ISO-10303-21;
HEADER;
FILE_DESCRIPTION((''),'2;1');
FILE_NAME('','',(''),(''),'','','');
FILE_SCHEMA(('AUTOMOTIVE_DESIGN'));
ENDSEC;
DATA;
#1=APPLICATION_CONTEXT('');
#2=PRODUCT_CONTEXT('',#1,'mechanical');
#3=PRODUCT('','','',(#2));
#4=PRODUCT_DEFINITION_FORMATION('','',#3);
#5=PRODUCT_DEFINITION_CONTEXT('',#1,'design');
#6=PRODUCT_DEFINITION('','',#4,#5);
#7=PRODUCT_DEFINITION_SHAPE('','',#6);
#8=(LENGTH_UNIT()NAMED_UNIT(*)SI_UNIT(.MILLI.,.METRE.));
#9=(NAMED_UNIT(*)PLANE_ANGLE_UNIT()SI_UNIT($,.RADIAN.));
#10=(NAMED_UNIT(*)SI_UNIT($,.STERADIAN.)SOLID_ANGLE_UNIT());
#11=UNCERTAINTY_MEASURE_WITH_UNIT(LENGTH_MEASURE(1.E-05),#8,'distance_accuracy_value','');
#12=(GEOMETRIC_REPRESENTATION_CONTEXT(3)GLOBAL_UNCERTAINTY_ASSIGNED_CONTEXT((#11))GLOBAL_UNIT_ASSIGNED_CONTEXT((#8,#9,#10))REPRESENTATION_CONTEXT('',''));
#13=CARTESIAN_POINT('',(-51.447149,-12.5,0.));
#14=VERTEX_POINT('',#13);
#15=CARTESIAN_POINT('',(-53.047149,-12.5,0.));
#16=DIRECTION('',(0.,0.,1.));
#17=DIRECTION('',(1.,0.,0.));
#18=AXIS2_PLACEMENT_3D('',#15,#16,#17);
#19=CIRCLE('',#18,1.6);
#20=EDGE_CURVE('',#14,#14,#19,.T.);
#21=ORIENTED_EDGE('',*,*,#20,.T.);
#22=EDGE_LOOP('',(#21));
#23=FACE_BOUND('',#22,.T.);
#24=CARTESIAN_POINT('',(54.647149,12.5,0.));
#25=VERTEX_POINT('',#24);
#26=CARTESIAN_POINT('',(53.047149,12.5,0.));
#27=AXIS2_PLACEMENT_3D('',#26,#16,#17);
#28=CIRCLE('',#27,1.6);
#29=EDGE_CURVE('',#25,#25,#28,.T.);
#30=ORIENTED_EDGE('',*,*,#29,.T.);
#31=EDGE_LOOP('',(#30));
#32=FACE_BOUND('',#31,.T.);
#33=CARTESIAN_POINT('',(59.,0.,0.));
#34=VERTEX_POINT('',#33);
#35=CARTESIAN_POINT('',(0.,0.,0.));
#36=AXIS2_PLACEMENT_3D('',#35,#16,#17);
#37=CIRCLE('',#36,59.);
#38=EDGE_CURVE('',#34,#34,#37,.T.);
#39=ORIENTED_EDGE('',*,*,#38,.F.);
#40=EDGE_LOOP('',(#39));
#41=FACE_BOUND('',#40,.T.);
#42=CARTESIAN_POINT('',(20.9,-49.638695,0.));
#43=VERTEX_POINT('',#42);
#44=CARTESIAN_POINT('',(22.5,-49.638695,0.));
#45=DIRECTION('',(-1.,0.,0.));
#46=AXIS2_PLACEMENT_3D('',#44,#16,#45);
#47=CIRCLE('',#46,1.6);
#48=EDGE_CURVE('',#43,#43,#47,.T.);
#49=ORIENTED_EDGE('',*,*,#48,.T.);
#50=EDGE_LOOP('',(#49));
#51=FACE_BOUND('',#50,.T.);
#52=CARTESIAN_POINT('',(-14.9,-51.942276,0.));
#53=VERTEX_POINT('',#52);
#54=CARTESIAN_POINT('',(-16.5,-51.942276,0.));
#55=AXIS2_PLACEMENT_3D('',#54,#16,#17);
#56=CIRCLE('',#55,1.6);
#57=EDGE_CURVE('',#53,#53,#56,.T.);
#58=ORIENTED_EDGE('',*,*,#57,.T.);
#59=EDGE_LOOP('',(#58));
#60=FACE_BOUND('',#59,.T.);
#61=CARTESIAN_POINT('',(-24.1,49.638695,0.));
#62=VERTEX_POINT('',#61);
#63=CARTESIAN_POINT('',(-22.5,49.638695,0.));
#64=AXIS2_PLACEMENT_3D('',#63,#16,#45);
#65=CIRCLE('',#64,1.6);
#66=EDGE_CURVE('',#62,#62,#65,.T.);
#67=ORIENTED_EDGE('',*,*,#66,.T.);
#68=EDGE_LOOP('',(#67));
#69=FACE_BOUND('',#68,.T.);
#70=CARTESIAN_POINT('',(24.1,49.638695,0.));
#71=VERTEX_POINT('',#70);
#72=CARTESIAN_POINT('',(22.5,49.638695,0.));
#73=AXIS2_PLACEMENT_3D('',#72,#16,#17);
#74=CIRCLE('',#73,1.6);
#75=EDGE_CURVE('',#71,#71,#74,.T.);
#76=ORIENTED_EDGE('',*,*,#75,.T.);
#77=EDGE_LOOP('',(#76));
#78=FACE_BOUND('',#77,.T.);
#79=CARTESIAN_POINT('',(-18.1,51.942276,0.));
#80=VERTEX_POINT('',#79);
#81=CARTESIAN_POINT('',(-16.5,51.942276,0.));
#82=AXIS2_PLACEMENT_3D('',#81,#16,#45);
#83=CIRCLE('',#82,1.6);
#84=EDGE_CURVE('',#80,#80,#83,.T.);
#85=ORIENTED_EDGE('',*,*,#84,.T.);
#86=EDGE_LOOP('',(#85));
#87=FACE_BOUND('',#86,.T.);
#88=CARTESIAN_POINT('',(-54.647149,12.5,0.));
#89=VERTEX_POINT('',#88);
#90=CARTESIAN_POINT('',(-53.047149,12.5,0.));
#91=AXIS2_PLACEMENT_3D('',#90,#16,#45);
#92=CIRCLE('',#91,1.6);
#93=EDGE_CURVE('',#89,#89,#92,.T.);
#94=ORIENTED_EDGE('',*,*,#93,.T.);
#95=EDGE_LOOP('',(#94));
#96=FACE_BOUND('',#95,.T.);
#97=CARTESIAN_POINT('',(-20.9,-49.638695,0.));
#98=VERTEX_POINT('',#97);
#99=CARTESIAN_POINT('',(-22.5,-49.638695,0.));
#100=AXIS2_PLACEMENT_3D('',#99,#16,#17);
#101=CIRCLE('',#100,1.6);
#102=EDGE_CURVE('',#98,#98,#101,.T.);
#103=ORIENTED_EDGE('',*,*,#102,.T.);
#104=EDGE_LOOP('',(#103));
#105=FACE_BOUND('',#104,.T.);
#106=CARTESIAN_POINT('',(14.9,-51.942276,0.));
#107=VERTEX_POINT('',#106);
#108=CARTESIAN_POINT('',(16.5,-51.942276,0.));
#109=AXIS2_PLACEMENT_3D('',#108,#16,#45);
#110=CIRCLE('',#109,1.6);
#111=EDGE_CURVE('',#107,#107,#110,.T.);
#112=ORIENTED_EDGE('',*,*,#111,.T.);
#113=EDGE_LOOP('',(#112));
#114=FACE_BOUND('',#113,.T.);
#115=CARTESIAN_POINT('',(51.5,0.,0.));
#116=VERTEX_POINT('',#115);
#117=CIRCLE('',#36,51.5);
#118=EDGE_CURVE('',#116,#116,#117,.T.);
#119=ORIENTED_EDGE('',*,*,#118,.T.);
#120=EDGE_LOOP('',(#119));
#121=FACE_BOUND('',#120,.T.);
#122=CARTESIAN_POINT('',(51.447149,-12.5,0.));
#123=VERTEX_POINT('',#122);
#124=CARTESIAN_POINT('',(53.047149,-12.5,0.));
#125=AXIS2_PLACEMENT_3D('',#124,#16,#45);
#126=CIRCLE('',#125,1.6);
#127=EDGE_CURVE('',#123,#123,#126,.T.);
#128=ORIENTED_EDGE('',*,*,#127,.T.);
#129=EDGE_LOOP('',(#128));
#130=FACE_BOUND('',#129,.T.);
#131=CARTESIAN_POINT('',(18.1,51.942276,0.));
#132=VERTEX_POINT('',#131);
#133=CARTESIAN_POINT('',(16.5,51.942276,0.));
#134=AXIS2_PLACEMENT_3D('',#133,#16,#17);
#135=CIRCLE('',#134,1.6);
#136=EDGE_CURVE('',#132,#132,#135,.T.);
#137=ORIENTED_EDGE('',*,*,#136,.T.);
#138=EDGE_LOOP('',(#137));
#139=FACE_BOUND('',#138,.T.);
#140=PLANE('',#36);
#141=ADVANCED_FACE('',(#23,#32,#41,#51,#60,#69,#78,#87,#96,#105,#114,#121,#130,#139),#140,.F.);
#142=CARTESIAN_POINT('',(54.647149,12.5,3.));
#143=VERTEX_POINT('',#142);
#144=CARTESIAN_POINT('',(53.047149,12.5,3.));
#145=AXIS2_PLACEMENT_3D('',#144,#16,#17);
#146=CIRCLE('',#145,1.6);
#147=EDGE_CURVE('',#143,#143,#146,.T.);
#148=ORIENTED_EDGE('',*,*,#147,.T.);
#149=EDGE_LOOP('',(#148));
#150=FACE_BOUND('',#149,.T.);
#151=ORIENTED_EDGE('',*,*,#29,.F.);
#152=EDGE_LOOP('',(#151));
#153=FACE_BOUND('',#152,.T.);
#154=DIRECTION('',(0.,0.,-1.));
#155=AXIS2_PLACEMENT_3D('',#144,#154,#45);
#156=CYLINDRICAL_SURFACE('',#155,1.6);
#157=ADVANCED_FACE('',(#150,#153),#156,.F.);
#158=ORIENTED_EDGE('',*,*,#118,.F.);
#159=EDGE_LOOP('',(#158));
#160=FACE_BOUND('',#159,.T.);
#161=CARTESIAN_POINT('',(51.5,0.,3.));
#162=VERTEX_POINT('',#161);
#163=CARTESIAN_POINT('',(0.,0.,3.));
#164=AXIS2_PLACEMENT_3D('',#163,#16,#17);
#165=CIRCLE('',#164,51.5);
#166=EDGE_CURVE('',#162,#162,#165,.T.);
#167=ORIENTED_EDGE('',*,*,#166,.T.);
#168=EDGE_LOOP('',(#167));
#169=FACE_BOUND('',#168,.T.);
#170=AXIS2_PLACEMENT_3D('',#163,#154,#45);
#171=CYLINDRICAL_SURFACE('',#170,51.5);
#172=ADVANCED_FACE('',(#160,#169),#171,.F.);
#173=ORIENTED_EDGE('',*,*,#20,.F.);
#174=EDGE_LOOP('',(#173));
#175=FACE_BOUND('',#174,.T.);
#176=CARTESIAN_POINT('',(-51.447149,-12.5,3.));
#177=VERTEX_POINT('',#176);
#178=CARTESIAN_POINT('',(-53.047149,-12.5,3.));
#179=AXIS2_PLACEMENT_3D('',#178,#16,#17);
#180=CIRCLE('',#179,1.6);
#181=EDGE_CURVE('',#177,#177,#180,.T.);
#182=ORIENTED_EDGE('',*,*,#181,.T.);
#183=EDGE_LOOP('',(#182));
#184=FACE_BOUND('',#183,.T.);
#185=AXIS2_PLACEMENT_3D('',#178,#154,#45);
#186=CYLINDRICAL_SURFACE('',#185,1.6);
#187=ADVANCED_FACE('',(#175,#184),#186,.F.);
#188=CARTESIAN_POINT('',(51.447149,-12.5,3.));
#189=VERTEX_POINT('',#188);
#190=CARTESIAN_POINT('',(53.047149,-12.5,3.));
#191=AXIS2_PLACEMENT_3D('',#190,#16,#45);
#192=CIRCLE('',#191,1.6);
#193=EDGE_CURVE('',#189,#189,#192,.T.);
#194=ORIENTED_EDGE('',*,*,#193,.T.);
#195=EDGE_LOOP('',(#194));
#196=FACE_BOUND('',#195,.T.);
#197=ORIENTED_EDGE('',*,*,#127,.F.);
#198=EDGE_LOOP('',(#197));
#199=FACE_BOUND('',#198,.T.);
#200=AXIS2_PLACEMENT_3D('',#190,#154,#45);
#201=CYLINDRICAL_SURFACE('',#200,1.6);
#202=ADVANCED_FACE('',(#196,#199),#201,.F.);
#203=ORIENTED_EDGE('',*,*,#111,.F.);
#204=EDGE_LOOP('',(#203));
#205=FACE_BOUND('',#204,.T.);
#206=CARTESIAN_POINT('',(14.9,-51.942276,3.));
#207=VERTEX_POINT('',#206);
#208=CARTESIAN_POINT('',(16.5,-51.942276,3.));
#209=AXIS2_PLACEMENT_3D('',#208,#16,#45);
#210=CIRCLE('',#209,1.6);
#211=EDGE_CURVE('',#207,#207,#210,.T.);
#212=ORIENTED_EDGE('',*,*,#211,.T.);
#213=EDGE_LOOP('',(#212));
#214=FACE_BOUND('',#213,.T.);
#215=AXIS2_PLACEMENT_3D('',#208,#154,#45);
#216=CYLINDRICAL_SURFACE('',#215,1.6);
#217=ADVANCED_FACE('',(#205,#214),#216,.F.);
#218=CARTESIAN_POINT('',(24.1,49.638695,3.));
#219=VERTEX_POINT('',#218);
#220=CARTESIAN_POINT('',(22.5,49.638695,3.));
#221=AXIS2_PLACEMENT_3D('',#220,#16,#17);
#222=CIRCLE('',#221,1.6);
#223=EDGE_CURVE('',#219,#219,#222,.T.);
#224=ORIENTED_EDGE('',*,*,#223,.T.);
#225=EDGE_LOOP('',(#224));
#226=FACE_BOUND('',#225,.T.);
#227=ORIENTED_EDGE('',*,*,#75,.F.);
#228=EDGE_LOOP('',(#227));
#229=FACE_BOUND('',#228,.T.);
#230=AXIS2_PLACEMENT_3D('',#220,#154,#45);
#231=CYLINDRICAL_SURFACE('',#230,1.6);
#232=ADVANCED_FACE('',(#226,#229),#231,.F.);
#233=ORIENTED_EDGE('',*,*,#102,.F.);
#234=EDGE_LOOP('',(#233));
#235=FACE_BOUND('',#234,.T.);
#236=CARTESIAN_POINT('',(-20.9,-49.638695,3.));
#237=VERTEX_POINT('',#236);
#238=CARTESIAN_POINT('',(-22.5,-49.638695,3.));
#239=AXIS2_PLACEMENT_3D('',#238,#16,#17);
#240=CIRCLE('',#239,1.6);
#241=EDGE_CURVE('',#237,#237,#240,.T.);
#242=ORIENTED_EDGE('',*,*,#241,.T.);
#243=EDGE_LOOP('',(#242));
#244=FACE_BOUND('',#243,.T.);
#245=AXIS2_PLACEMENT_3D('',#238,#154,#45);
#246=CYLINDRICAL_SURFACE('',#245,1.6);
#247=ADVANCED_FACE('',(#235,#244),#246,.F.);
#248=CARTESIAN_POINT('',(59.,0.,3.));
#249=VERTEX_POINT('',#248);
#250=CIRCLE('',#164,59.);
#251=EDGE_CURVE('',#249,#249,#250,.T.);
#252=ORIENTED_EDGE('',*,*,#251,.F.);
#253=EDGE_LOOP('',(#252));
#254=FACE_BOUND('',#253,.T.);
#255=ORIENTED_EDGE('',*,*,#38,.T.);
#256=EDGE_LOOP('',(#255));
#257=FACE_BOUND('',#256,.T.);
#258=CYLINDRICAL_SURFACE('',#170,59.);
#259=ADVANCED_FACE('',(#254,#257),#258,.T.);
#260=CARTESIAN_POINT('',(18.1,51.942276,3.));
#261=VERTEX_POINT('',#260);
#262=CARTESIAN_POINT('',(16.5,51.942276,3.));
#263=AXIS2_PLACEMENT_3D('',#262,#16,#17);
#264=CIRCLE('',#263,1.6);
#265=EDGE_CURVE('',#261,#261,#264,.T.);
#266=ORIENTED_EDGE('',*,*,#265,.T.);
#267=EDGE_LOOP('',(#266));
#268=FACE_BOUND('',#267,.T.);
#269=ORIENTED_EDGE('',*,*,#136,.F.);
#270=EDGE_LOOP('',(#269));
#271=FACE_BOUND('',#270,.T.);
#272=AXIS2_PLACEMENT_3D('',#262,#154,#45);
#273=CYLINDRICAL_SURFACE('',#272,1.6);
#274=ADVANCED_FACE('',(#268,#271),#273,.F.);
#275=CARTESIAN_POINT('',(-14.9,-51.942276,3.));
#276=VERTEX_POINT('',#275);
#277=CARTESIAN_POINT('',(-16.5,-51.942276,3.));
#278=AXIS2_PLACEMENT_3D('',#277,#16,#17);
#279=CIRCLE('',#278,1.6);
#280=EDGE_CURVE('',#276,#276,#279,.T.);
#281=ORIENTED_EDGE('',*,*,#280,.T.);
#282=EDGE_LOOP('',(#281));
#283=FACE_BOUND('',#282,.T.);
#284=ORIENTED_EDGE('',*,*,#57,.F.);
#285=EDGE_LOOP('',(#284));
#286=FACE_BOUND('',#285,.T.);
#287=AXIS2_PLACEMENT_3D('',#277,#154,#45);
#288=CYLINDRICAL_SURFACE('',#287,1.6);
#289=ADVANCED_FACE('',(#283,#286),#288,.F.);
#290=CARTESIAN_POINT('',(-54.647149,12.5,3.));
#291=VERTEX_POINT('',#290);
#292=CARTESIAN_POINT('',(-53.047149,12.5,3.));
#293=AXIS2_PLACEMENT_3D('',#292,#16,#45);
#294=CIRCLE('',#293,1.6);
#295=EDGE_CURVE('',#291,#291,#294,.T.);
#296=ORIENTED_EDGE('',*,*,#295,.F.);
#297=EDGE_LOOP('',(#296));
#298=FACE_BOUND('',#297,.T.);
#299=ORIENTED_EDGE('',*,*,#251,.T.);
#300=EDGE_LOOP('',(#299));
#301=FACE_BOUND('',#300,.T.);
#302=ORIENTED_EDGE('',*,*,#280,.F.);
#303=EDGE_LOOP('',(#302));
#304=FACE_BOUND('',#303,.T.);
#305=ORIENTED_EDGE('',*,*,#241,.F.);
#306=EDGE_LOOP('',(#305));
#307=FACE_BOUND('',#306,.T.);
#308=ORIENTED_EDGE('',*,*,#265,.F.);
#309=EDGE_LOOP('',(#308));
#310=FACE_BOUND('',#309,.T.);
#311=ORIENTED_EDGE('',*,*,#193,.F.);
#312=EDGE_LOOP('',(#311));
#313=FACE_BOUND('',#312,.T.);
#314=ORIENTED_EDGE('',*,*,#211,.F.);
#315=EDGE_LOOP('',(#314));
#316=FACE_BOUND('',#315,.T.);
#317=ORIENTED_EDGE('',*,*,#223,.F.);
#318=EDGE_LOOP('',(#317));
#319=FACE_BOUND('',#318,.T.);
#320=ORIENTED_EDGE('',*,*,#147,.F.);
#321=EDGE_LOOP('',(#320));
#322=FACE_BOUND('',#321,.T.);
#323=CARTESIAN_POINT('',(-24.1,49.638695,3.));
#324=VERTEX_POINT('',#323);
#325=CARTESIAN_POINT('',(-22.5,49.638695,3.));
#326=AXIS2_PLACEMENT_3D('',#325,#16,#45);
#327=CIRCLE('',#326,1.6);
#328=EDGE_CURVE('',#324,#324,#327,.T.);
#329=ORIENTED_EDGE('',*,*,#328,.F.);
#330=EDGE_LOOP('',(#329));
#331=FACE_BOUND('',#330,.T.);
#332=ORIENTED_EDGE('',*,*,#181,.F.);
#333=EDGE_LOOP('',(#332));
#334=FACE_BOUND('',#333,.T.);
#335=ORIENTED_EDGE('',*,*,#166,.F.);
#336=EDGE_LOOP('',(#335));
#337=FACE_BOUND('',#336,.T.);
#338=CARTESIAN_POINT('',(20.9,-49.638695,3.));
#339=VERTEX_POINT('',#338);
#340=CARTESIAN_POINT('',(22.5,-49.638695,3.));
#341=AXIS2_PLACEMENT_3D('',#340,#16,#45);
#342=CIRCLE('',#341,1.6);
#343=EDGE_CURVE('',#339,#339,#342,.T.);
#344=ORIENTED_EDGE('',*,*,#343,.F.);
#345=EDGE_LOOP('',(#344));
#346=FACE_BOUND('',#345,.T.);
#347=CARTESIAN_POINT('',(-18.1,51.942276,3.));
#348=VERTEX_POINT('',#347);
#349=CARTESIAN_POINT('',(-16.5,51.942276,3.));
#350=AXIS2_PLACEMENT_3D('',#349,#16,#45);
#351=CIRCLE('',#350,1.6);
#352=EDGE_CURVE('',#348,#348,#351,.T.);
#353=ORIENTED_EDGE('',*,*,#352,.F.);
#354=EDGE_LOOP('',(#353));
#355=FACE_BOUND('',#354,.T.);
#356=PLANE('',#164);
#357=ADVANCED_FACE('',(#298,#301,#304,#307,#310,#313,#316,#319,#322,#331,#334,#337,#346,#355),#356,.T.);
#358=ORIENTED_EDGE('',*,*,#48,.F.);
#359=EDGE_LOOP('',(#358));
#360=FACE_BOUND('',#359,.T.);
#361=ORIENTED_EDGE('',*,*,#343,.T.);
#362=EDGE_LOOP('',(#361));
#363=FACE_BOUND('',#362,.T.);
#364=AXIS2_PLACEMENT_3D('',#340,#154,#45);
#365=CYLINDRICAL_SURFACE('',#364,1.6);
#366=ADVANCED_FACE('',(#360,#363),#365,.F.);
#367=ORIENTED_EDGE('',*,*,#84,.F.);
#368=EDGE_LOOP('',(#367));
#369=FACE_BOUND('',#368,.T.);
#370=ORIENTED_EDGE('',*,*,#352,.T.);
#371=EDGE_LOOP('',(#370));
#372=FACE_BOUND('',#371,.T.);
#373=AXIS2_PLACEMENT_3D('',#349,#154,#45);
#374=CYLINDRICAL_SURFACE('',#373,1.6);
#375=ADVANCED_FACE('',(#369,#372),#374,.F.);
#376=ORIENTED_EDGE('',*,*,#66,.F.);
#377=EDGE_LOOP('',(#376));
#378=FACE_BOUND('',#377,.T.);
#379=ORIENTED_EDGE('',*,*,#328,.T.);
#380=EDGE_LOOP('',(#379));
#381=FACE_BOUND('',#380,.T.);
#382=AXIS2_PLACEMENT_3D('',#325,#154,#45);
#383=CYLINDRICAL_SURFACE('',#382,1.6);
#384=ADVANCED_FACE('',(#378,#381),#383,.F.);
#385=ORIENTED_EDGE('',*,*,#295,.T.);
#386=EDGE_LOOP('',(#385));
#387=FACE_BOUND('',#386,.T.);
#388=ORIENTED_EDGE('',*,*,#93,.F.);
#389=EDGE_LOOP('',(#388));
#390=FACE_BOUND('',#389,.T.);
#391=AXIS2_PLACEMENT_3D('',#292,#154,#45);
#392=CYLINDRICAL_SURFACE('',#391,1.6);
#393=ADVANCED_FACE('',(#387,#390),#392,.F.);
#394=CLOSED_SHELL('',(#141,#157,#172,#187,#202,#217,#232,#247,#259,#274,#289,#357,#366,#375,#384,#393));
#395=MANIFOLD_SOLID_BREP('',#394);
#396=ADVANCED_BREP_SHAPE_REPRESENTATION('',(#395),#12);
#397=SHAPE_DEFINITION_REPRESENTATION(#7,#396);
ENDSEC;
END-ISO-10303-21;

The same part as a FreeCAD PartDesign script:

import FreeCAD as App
import Part
import Sketcher

doc = App.newDocument("Part")
params = doc.addObject("Spreadsheet::Sheet", "Params")
for row, (alias, value) in enumerate([
    ("sketch1_diameter", "118 mm"),
    ("sketch1_diameter2", "103 mm"),
    ("sketch1_diameter3", "3.2 mm"),
    ("pad1_length", "3 mm"),
], start=1):
    params.set(f"A{row}", alias)
    params.set(f"B{row}", "=" + value)
    params.setAlias(f"B{row}", alias)

body = doc.addObject("PartDesign::Body", "Body")

sketch1 = body.newObject("Sketcher::SketchObject", "Sketch")
sketch1.AttachmentSupport = (doc.getObject("XY_Plane"), [""])
sketch1.MapMode = "FlatFace"
sketch1.addGeometry([
    Part.Circle(App.Vector(0, 0, 0), App.Vector(0, 0, 1), 59),
    Part.Circle(App.Vector(-22.5, -49.638695, 0), App.Vector(0, 0, 1), 1.6),
    Part.Circle(App.Vector(-16.5, -51.942276, 0), App.Vector(0, 0, 1), 1.6),
    Part.Circle(App.Vector(-53.047149, -12.5, 0), App.Vector(0, 0, 1), 1.6),
    Part.Circle(App.Vector(0, 0, 0), App.Vector(0, 0, 1), 51.5),
    Part.Circle(App.Vector(16.5, -51.942276, 0), App.Vector(0, 0, 1), 1.6),
    Part.Circle(App.Vector(22.5, -49.638695, 0), App.Vector(0, 0, 1), 1.6),
    Part.Circle(App.Vector(53.047149, -12.5, 0), App.Vector(0, 0, 1), 1.6),
    Part.Circle(App.Vector(-53.047149, 12.5, 0), App.Vector(0, 0, 1), 1.6),
    Part.Circle(App.Vector(-22.5, 49.638695, 0), App.Vector(0, 0, 1), 1.6),
    Part.Circle(App.Vector(-16.5, 51.942276, 0), App.Vector(0, 0, 1), 1.6),
    Part.Circle(App.Vector(53.047149, 12.5, 0), App.Vector(0, 0, 1), 1.6),
    Part.Circle(App.Vector(16.5, 51.942276, 0), App.Vector(0, 0, 1), 1.6),
    Part.Circle(App.Vector(22.5, 49.638695, 0), App.Vector(0, 0, 1), 1.6),
], False)
sketch1.addConstraint([
    Sketcher.Constraint("Coincident", 0, 3, -1, 1),
    Sketcher.Constraint("Coincident", 4, 3, -1, 1),
    Sketcher.Constraint("Equal", 1, 2),
    Sketcher.Constraint("Equal", 2, 3),
    Sketcher.Constraint("Equal", 3, 5),
    Sketcher.Constraint("Equal", 5, 6),
    Sketcher.Constraint("Equal", 6, 7),
    Sketcher.Constraint("Equal", 7, 8),
    Sketcher.Constraint("Equal", 8, 9),
    Sketcher.Constraint("Equal", 9, 10),
    Sketcher.Constraint("Equal", 10, 11),
    Sketcher.Constraint("Equal", 11, 12),
    Sketcher.Constraint("Equal", 12, 13),
    Sketcher.Constraint("Symmetric", 7, 3, 8, 3, -1, 1),
    Sketcher.Constraint("Symmetric", 6, 3, 9, 3, -1, 1),
    Sketcher.Constraint("Symmetric", 5, 3, 10, 3, -1, 1),
    Sketcher.Constraint("Symmetric", 3, 3, 11, 3, -1, 1),
    Sketcher.Constraint("Symmetric", 2, 3, 12, 3, -1, 1),
    Sketcher.Constraint("Symmetric", 1, 3, 13, 3, -1, 1),
    Sketcher.Constraint("Symmetric", 2, 3, 5, 3, -2),
    Sketcher.Constraint("Symmetric", 1, 3, 6, 3, -2),
    Sketcher.Constraint("Symmetric", 3, 3, 7, 3, -2),
    Sketcher.Constraint("Diameter", 0, 118.0),
    Sketcher.Constraint("Diameter", 4, 103.0),
    Sketcher.Constraint("Diameter", 1, 3.2),
    Sketcher.Constraint("DistanceX", 1, 3, 2, 3, 6.0),
    Sketcher.Constraint("DistanceX", 2, 3, 5, 3, 33.0),
    Sketcher.Constraint("DistanceY", 3, 3, 8, 3, 25.0),
    Sketcher.Constraint("DistanceX", 3, 3, -1, 1, 53.047149),
    Sketcher.Constraint("DistanceY", 2, 3, 1, 3, 2.303581),
    Sketcher.Constraint("DistanceY", 1, 3, -1, 1, 49.638695),
])
sketch1.setExpression("Constraints[22]", "Params.sketch1_diameter")
sketch1.setExpression("Constraints[23]", "Params.sketch1_diameter2")
sketch1.setExpression("Constraints[24]", "Params.sketch1_diameter3")
pad1 = body.newObject("PartDesign::Pad", "Pad")
pad1.Profile = sketch1
pad1.setExpression("Length", "Params.pad1_length")

doc.recompute()
